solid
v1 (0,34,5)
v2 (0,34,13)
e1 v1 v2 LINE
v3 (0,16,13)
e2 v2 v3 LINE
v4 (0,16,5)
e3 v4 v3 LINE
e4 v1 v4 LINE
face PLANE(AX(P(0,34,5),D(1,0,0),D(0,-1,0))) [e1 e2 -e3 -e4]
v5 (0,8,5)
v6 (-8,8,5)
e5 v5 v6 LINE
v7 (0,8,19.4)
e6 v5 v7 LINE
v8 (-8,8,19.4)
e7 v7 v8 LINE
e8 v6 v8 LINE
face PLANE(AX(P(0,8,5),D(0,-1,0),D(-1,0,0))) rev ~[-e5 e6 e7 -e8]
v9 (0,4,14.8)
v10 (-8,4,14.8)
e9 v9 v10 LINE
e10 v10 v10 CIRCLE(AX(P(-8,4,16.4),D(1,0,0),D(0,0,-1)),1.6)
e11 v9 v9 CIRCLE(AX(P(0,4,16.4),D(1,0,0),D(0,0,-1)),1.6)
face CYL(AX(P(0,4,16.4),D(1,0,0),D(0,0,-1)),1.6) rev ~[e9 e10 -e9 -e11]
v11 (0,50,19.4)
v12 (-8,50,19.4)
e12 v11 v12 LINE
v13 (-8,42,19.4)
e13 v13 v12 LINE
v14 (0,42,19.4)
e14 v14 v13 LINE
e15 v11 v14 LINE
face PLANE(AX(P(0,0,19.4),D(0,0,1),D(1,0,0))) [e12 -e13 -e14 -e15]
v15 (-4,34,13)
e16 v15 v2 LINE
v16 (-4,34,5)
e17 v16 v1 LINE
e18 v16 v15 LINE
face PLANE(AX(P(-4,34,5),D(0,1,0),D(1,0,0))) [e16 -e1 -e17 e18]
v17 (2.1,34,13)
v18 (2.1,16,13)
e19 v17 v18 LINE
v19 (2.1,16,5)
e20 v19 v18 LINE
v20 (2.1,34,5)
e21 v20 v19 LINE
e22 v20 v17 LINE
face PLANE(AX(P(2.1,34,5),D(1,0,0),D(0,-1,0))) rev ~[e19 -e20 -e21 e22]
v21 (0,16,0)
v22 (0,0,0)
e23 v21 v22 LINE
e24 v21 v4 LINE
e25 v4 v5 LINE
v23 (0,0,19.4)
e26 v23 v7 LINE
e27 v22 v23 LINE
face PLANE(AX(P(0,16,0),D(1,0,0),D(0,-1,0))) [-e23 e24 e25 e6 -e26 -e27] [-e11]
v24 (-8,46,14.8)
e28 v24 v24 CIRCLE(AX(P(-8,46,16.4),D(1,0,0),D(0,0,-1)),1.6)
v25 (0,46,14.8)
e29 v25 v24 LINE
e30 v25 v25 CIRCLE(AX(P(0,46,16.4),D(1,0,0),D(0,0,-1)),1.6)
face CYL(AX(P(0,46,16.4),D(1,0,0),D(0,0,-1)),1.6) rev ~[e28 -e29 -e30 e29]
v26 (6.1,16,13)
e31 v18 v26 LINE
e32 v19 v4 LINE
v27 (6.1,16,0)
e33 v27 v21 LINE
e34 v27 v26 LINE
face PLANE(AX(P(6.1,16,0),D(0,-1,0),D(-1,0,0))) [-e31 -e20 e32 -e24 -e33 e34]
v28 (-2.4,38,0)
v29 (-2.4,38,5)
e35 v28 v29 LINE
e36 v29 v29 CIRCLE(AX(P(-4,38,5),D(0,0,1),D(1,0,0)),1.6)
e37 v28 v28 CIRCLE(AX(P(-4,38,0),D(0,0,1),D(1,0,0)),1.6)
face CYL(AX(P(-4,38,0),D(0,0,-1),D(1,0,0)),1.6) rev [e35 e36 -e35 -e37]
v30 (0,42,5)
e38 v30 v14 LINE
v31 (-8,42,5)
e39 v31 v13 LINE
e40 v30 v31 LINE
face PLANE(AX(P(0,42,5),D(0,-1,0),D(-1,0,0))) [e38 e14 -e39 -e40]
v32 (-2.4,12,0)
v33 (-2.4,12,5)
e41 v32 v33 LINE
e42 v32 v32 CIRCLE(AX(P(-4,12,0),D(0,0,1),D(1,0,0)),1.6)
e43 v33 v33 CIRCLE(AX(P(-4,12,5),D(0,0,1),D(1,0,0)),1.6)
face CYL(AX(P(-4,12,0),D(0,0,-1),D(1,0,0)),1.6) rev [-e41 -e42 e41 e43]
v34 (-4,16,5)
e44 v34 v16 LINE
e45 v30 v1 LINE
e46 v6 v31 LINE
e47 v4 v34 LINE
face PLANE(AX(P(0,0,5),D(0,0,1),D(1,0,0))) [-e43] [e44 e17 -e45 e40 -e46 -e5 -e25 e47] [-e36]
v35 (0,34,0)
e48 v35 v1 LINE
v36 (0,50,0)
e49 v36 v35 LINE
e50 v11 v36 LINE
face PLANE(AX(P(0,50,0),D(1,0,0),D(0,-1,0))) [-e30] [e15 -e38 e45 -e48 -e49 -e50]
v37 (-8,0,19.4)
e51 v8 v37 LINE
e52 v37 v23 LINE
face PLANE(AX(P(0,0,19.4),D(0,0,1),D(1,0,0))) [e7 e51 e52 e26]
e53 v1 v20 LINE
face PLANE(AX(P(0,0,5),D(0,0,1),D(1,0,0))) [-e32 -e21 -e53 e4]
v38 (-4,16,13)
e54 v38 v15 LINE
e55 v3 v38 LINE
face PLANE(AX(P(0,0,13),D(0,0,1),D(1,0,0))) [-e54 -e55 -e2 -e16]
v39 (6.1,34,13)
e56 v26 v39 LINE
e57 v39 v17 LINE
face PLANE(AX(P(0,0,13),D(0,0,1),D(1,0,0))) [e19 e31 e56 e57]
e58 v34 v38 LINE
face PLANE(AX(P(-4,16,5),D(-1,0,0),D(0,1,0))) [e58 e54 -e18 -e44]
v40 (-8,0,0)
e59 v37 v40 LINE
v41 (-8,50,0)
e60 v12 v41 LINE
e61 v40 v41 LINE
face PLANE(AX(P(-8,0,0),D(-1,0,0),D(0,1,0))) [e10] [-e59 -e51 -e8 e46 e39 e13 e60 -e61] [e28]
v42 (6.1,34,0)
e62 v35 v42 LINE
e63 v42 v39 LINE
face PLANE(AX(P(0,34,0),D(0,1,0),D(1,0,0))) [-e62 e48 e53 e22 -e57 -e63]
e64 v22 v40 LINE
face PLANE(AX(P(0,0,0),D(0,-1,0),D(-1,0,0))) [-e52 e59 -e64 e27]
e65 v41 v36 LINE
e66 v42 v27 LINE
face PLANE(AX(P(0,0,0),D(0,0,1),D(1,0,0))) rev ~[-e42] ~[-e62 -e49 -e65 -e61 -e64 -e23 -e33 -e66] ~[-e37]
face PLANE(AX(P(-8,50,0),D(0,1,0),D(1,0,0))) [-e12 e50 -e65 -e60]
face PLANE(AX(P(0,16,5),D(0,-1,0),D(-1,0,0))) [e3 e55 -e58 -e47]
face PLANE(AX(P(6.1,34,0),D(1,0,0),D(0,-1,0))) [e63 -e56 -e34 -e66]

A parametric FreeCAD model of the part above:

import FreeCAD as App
import Part
import Sketcher

V = App.Vector


def add_polygon(sketch, points):
    """Adds a closed chain of lines whose ends are joined by coincident constraints."""
    first, n = sketch.GeometryCount, len(points)
    for a, b in zip(points, points[1:] + points[:1]):
        sketch.addGeometry(Part.LineSegment(App.Vector(*a, 0), App.Vector(*b, 0)), False)
    for i in range(n):
        sketch.addConstraint(Sketcher.Constraint("Coincident", first + i, 2, first + (i + 1) % n, 1))

doc = App.newDocument("Part")
body = doc.addObject("PartDesign::Body", "Body")

# Sketch on XY plane
sketch1 = doc.addObject("Sketcher::SketchObject", "Sketch")
body.addObject(sketch1)
sketch1.AttachmentSupport = (doc.XY_Plane, [""])
sketch1.MapMode = "FlatFace"
add_polygon(sketch1, [(-8, 0), (0, 0), (0, 16), (6.1, 16), (6.1, 34), (0, 34), (0, 50), (-8, 50)])  # lines 0-7
sketch1.addGeometry(Part.Circle(V(-4, 12, 0), V(0, 0, 1), 1.6), False)  # 8
sketch1.addGeometry(Part.Circle(V(-4, 38, 0), V(0, 0, 1), 1.6), False)  # 9
sketch1.addConstraint([
    Sketcher.Constraint("Horizontal", 0),
    Sketcher.Constraint("Vertical", 1),
    Sketcher.Constraint("Horizontal", 2),
    Sketcher.Constraint("Vertical", 3),
    Sketcher.Constraint("Horizontal", 4),
    Sketcher.Constraint("Vertical", 5),
    Sketcher.Constraint("Horizontal", 6),
    Sketcher.Constraint("Vertical", 7),
    Sketcher.Constraint("Coincident", 0, 2, -1, 1),
    Sketcher.Constraint("Equal", 8, 9),
    Sketcher.Constraint("PointOnObject", 4, 2, -2),
    Sketcher.Constraint("Vertical", 8, 3, 9, 3),
    Sketcher.Constraint("Equal", 1, 5),
    Sketcher.Constraint("Diameter", 8, 3.2),
    Sketcher.Constraint("DistanceX", 0, 1, 0, 2, 8.0),
    Sketcher.Constraint("DistanceY", 3, 1, 3, 2, 18.0),
    Sketcher.Constraint("DistanceY", 7, 2, 7, 1, 50.0),
    Sketcher.Constraint("DistanceX", 2, 1, 2, 2, 6.1),
    Sketcher.Constraint("DistanceX", 8, 3, -1, 1, 4.0),
    Sketcher.Constraint("DistanceY", 8, 3, 1, 2, 4.0),
    Sketcher.Constraint("DistanceY", 3, 2, 9, 3, 4.0),
])
pad1 = doc.addObject("PartDesign::Pad", "Pad")
body.addObject(pad1)
pad1.Profile = sketch1
pad1.Length = 5

# Sketch on XY plane
sketch2 = doc.addObject("Sketcher::SketchObject", "Sketch001")
body.addObject(sketch2)
sketch2.AttachmentSupport = (doc.XY_Plane, [""])
sketch2.MapMode = "FlatFace"
sketch2.AttachmentOffset = App.Placement(V(0, 0, 5), App.Rotation())
add_polygon(sketch2, [(-8, 8), (-8, 0), (0, 0), (0, 8)])  # lines 0-3
add_polygon(sketch2, [(0, 42), (0, 50), (-8, 50), (-8, 42)])  # lines 4-7
sketch2.addConstraint([
    Sketcher.Constraint("Vertical", 0),
    Sketcher.Constraint("Horizontal", 1),
    Sketcher.Constraint("Vertical", 2),
    Sketcher.Constraint("Horizontal", 3),
    Sketcher.Constraint("Vertical", 4),
    Sketcher.Constraint("Horizontal", 5),
    Sketcher.Constraint("Vertical", 6),
    Sketcher.Constraint("Horizontal", 7),
    Sketcher.Constraint("Coincident", 1, 2, -1, 1),
    Sketcher.Constraint("PointOnObject", 4, 2, -2),
    Sketcher.Constraint("Vertical", 3, 2, 5, 2),
    Sketcher.Constraint("Equal", 7, 0),
    Sketcher.Constraint("Equal", 2, 4),
    Sketcher.Constraint("DistanceX", 1, 1, 1, 2, 8.0),
    Sketcher.Constraint("DistanceY", -1, 1, 4, 2, 50.0),
])
pad2 = doc.addObject("PartDesign::Pad", "Pad001")
body.addObject(pad2)
pad2.Profile = sketch2
pad2.Length = 14.4

# Sketch on YZ plane
sketch3 = doc.addObject("Sketcher::SketchObject", "Sketch002")
body.addObject(sketch3)
sketch3.AttachmentSupport = (doc.YZ_Plane, [""])
sketch3.MapMode = "FlatFace"
sketch3.addGeometry([
    Part.Circle(V(46, 16.4, 0), V(0, 0, 1), 1.6),
    Part.Circle(V(4, 16.4, 0), V(0, 0, 1), 1.6),
], False)
sketch3.addConstraint([
    Sketcher.Constraint("Equal", 0, 1),
    Sketcher.Constraint("Horizontal", 0, 3, 1, 3),
    Sketcher.Constraint("Diameter", 0, 3.2),
    Sketcher.Constraint("DistanceX", -1, 1, 0, 3, 46.0),
    Sketcher.Constraint("DistanceX", -1, 1, 1, 3, 4.0),
    Sketcher.Constraint("DistanceY", -1, 1, 0, 3, 16.4),
])
pocket1 = doc.addObject("PartDesign::Pocket", "Pocket")
body.addObject(pocket1)
pocket1.Profile = sketch3
pocket1.Length = 15

# Sketch on XY plane
sketch4 = doc.addObject("Sketcher::SketchObject", "Sketch003")
body.addObject(sketch4)
sketch4.AttachmentSupport = (doc.XY_Plane, [""])
sketch4.MapMode = "FlatFace"
sketch4.AttachmentOffset = App.Placement(V(0, 0, 5), App.Rotation())
add_polygon(sketch4, [(2.1, 16), (6.1, 16), (6.1, 34), (2.1, 34)])  # lines 0-3
add_polygon(sketch4, [(-4, 16), (0, 16), (0, 34), (-4, 34)])  # lines 4-7
sketch4.addConstraint([
    Sketcher.Constraint("Horizontal", 0),
    Sketcher.Constraint("Vertical", 1),
    Sketcher.Constraint("Horizontal", 2),
    Sketcher.Constraint("Vertical", 3),
    Sketcher.Constraint("Horizontal", 4),
    Sketcher.Constraint("Vertical", 5),
    Sketcher.Constraint("Horizontal", 6),
    Sketcher.Constraint("Vertical", 7),
    Sketcher.Constraint("PointOnObject", 4, 2, -2),
    Sketcher.Constraint("Horizontal", 3, 2, 4, 2),
    Sketcher.Constraint("Horizontal", 2, 2, 5, 2),
    Sketcher.Constraint("Equal", 2, 4),
    Sketcher.Constraint("DistanceX", 0, 1, 0, 2, 4.0),
    Sketcher.Constraint("DistanceX", -1, 1, 2, 2, 2.1),
    Sketcher.Constraint("DistanceY", 1, 1, 1, 2, 18.0),
    Sketcher.Constraint("DistanceY", -1, 1, 0, 2, 16.0),
])
pad3 = doc.addObject("PartDesign::Pad", "Pad002")
body.addObject(pad3)
pad3.Profile = sketch4
pad3.Length = 8

doc.recompute()
